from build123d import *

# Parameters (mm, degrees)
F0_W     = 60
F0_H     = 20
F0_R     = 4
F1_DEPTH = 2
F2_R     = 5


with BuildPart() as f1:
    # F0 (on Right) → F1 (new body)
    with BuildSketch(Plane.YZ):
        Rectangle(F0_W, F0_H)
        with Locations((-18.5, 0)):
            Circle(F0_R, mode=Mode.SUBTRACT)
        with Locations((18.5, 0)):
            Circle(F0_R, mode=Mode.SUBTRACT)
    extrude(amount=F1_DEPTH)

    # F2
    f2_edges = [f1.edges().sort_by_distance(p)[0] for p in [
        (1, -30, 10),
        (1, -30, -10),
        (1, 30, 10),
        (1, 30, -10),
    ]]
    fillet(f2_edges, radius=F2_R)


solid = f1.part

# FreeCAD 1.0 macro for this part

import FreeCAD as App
import Part
import Sketcher

V = App.Vector


def edges_at(feature, points):
    """Names of the edges that pass closest to the given points."""
    edges = feature.Shape.Edges
    near = lambda p: min(range(len(edges)), key=lambda i: edges[i].distToShape(Part.Vertex(*p))[0])
    return sorted({f"Edge{near(p) + 1}" for p in points})

doc = App.newDocument("Part")
body = doc.addObject("PartDesign::Body", "Body")

sketch1 = body.newObject("Sketcher::SketchObject", "Sketch")
sketch1.AttachmentSupport = (doc.getObject("YZ_Plane"), [""])
sketch1.MapMode = "FlatFace"
sketch1.addGeometry(Part.LineSegment(V(-30, 10, 0), V(-30, -10, 0)), False)
sketch1.addGeometry(Part.LineSegment(V(-30, -10, 0), V(30, -10, 0)), False)
sketch1.addGeometry(Part.LineSegment(V(30, -10, 0), V(30, 10, 0)), False)
sketch1.addGeometry(Part.LineSegment(V(30, 10, 0), V(-30, 10, 0)), False)
sketch1.addGeometry(Part.Circle(V(-18.5, 0, 0), V(0, 0, 1), 4), False)
sketch1.addGeometry(Part.Circle(V(18.5, 0, 0), V(0, 0, 1), 4), False)
sketch1.addConstraint(Sketcher.Constraint("Coincident", 0, 2, 1, 1))
sketch1.addConstraint(Sketcher.Constraint("Coincident", 1, 2, 2, 1))
sketch1.addConstraint(Sketcher.Constraint("Coincident", 2, 2, 3, 1))
sketch1.addConstraint(Sketcher.Constraint("Coincident", 3, 2, 0, 1))
sketch1.addConstraint(Sketcher.Constraint("Vertical", 0))
sketch1.addConstraint(Sketcher.Constraint("Horizontal", 1))
sketch1.addConstraint(Sketcher.Constraint("Vertical", 2))
sketch1.addConstraint(Sketcher.Constraint("Horizontal", 3))
sketch1.addConstraint(Sketcher.Constraint("Equal", 4, 5))
sketch1.addConstraint(Sketcher.Constraint("Symmetric", 4, 3, 5, 3, -1, 1))
sketch1.addConstraint(Sketcher.Constraint("Symmetric", 0, 2, 2, 2, -1, 1))
sketch1.addConstraint(Sketcher.Constraint("PointOnObject", 4, 3, -1))
sketch1.addConstraint(Sketcher.Constraint("Diameter", 4, 8.0))
sketch1.addConstraint(Sketcher.Constraint("DistanceX", 1, 1, 1, 2, 60.0))
sketch1.addConstraint(Sketcher.Constraint("DistanceY", 0, 2, 0, 1, 20.0))
sketch1.addConstraint(Sketcher.Constraint("DistanceX", 4, 3, 5, 3, 37.0))
pad1 = body.newObject("PartDesign::Pad", "Pad")
pad1.Profile = sketch1
pad1.Length = 2
doc.recompute()

fillet = body.newObject("PartDesign::Fillet", "Fillet")
fillet.Base = (pad1, edges_at(pad1, [
    (1, -30, 10),
    (1, -30, -10),
    (1, 30, 10),
    (1, 30, -10),
]))
fillet.Radius = 5

doc.recompute()
